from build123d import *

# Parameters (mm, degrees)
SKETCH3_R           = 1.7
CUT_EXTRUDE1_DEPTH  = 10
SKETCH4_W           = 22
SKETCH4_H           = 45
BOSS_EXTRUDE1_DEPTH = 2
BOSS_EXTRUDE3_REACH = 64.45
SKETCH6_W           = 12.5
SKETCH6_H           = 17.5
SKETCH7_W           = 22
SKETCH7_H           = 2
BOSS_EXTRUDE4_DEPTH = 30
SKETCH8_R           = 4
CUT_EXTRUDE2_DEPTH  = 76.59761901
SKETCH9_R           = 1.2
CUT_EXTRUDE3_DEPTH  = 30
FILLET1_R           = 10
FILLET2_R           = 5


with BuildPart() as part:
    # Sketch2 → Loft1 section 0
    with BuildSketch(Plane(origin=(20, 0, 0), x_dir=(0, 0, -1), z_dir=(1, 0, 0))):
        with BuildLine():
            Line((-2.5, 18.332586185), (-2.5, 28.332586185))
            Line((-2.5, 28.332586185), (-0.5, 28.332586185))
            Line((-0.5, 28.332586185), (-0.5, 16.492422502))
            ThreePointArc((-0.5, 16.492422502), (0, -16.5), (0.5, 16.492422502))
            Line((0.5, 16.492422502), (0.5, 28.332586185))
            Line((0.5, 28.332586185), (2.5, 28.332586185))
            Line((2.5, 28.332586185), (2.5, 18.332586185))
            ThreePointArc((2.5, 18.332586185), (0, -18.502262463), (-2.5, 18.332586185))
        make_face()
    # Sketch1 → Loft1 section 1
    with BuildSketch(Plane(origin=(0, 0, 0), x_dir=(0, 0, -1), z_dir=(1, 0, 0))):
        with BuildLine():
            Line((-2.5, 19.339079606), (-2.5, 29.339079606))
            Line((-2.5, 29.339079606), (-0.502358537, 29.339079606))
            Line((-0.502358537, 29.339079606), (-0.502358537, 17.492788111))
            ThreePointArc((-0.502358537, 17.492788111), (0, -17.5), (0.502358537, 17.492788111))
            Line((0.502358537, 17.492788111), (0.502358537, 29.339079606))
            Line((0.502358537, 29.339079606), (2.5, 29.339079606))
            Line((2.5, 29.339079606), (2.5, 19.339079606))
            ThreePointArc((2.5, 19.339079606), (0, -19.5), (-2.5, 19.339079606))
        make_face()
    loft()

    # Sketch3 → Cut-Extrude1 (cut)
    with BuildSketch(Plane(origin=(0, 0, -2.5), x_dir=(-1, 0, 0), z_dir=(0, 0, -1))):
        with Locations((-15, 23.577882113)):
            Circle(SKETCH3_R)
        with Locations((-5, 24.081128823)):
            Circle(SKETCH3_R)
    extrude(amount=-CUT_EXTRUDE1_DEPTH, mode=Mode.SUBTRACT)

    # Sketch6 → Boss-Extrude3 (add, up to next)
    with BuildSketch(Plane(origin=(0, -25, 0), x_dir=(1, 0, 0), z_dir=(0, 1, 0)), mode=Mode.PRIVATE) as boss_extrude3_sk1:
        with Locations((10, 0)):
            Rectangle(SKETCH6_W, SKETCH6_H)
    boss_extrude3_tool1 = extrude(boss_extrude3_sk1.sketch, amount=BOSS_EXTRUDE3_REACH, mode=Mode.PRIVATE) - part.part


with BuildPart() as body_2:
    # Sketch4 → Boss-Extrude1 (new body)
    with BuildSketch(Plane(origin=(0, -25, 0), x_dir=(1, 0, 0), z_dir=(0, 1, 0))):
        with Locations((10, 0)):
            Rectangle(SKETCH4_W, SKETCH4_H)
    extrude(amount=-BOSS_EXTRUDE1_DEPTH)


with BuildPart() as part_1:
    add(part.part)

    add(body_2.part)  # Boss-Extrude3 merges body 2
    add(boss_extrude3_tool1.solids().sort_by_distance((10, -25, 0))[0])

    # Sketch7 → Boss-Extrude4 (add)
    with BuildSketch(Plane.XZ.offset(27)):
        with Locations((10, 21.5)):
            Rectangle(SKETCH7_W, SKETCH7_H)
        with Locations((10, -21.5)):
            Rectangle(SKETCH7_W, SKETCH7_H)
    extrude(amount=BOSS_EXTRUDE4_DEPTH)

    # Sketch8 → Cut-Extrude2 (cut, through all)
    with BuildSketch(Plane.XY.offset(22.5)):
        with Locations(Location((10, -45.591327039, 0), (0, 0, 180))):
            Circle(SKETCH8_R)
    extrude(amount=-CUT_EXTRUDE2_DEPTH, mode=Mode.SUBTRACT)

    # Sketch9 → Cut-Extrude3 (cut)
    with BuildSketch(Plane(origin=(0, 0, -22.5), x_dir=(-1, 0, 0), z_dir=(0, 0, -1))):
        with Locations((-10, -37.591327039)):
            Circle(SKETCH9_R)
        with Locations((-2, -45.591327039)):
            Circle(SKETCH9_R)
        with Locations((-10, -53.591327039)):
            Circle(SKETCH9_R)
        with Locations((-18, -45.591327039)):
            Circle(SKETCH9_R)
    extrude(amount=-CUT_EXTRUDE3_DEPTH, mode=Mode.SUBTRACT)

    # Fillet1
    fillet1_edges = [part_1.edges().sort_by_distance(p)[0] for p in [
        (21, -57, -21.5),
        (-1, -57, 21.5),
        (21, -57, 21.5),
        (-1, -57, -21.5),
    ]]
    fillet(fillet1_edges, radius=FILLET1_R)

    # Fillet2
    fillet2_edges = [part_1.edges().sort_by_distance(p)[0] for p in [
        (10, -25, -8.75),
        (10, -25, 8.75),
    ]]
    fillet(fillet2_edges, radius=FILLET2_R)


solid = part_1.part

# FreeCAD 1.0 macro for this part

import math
import FreeCAD as App
import Part
import Sketcher
Q = App.Units.Quantity


def edges_at(feature, points):
    """Names of the edges that pass closest to the given points."""
    edges = feature.Shape.Edges
    near = lambda p: min(range(len(edges)), key=lambda i: edges[i].distToShape(Part.Vertex(*p))[0])
    return sorted({f"Edge{near(p) + 1}" for p in points})

doc = App.newDocument("Part")
body = doc.addObject("PartDesign::Body", "Body")

sketch1 = doc.addObject("Sketcher::SketchObject", "Sketch")
body.addObject(sketch1)
sketch1.AttachmentSupport = (doc.YZ_Plane, [""])
sketch1.MapMode = "FlatFace"
sketch1.AttachmentOffset = App.Placement(App.Vector(0, 0, 20), App.Rotation())
sketch1.addGeometry(Part.LineSegment(App.Vector(28.3, 2.5, 0), App.Vector(18.3, 2.5, 0)), False)
sketch1.addGeometry(Part.ArcOfCircle(Part.Circle(App.Vector(0, 0, 0), App.Vector(0, 0, 1), 18.5), math.radians(8), math.radians(352)), False)
sketch1.addGeometry(Part.LineSegment(App.Vector(18.3, -2.5, 0), App.Vector(28.3, -2.5, 0)), False)
sketch1.addGeometry(Part.LineSegment(App.Vector(28.3, -2.5, 0), App.Vector(28.3, -0.5, 0)), False)
sketch1.addGeometry(Part.LineSegment(App.Vector(28.3, -0.5, 0), App.Vector(16.5, -0.5, 0)), False)
sketch1.addGeometry(Part.ArcOfCircle(Part.Circle(App.Vector(0, 0, 0), App.Vector(0, 0, 1), 16.5), math.radians(2), math.radians(358)), False)
sketch1.addGeometry(Part.LineSegment(App.Vector(16.5, 0.5, 0), App.Vector(28.3, 0.5, 0)), False)
sketch1.addGeometry(Part.LineSegment(App.Vector(28.3, 0.5, 0), App.Vector(28.3, 2.5, 0)), False)
sketch1.addConstraint(Sketcher.Constraint("Coincident", 0, 2, 1, 1))
sketch1.addConstraint(Sketcher.Constraint("Coincident", 1, 2, 2, 1))
sketch1.addConstraint(Sketcher.Constraint("Coincident", 2, 2, 3, 1))
sketch1.addConstraint(Sketcher.Constraint("Coincident", 3, 2, 4, 1))
sketch1.addConstraint(Sketcher.Constraint("Coincident", 4, 2, 5, 2))
sketch1.addConstraint(Sketcher.Constraint("Coincident", 5, 1, 6, 1))
sketch1.addConstraint(Sketcher.Constraint("Coincident", 6, 2, 7, 1))
sketch1.addConstraint(Sketcher.Constraint("Coincident", 7, 2, 0, 1))
sketch1.addConstraint(Sketcher.Constraint("Horizontal", 0))
sketch1.addConstraint(Sketcher.Constraint("Horizontal", 2))
sketch1.addConstraint(Sketcher.Constraint("Vertical", 3))
sketch1.addConstraint(Sketcher.Constraint("Horizontal", 4))
sketch1.addConstraint(Sketcher.Constraint("Horizontal", 6))
sketch1.addConstraint(Sketcher.Constraint("Vertical", 7))
sketch1.addConstraint(Sketcher.Constraint("Coincident", 1, 3, -1, 1))
sketch1.addConstraint(Sketcher.Constraint("Coincident", 5, 3, -1, 1))
sketch1.addConstraint(Sketcher.Constraint("Symmetric", 3, 2, 6, 2, -1))
sketch1.addConstraint(Sketcher.Constraint("Vertical", 0, 2, 1, 2))
sketch1.addConstraint(Sketcher.Constraint("Radius", 5, Q("16.5 mm")))
sketch1.addConstraint(Sketcher.Constraint("DistanceX", 0, 2, 0, 1, Q("10 mm")))
sketch1.addConstraint(Sketcher.Constraint("DistanceY", 3, 1, 3, 2, Q("2 mm")))
sketch1.addConstraint(Sketcher.Constraint("DistanceY", 1, 2, 0, 2, Q("5 mm")))
sketch1.addConstraint(Sketcher.Constraint("Radius", 1, Q("18.502262 mm")))

sketch2 = doc.addObject("Sketcher::SketchObject", "Sketch001")
body.addObject(sketch2)
sketch2.AttachmentSupport = (doc.YZ_Plane, [""])
sketch2.MapMode = "FlatFace"
sketch2.addGeometry(Part.LineSegment(App.Vector(29.3, 2.5, 0), App.Vector(19.3, 2.5, 0)), False)
sketch2.addGeometry(Part.ArcOfCircle(Part.Circle(App.Vector(0, 0, 0), App.Vector(0, 0, 1), 19.5), math.radians(7), math.radians(353)), False)
sketch2.addGeometry(Part.LineSegment(App.Vector(19.3, -2.5, 0), App.Vector(29.3, -2.5, 0)), False)
sketch2.addGeometry(Part.LineSegment(App.Vector(29.3, -2.5, 0), App.Vector(29.3, -0.5, 0)), False)
sketch2.addGeometry(Part.LineSegment(App.Vector(29.3, -0.5, 0), App.Vector(17.5, -0.5, 0)), False)
sketch2.addGeometry(Part.ArcOfCircle(Part.Circle(App.Vector(0, 0, 0), App.Vector(0, 0, 1), 17.5), math.radians(2), math.radians(358)), False)
sketch2.addGeometry(Part.LineSegment(App.Vector(17.5, 0.5, 0), App.Vector(29.3, 0.5, 0)), False)
sketch2.addGeometry(Part.LineSegment(App.Vector(29.3, 0.5, 0), App.Vector(29.3, 2.5, 0)), False)
sketch2.addConstraint(Sketcher.Constraint("Coincident", 0, 2, 1, 1))
sketch2.addConstraint(Sketcher.Constraint("Coincident", 1, 2, 2, 1))
sketch2.addConstraint(Sketcher.Constraint("Coincident", 2, 2, 3, 1))
sketch2.addConstraint(Sketcher.Constraint("Coincident", 3, 2, 4, 1))
sketch2.addConstraint(Sketcher.Constraint("Coincident", 4, 2, 5, 2))
sketch2.addConstraint(Sketcher.Constraint("Coincident", 5, 1, 6, 1))
sketch2.addConstraint(Sketcher.Constraint("Coincident", 6, 2, 7, 1))
sketch2.addConstraint(Sketcher.Constraint("Coincident", 7, 2, 0, 1))
sketch2.addConstraint(Sketcher.Constraint("Horizontal", 0))
sketch2.addConstraint(Sketcher.Constraint("Horizontal", 2))
sketch2.addConstraint(Sketcher.Constraint("Vertical", 3))
sketch2.addConstraint(Sketcher.Constraint("Horizontal", 4))
sketch2.addConstraint(Sketcher.Constraint("Horizontal", 6))
sketch2.addConstraint(Sketcher.Constraint("Vertical", 7))
sketch2.addConstraint(Sketcher.Constraint("Coincident", 1, 3, -1, 1))
sketch2.addConstraint(Sketcher.Constraint("Coincident", 5, 3, -1, 1))
sketch2.addConstraint(Sketcher.Constraint("Symmetric", 3, 2, 6, 2, -1))
sketch2.addConstraint(Sketcher.Constraint("Vertical", 0, 2, 1, 2))
sketch2.addConstraint(Sketcher.Constraint("Radius", 1, Q("19.5 mm")))
sketch2.addConstraint(Sketcher.Constraint("Radius", 5, Q("17.5 mm")))
sketch2.addConstraint(Sketcher.Constraint("DistanceX", 0, 2, 0, 1, Q("10 mm")))
sketch2.addConstraint(Sketcher.Constraint("DistanceY", 1, 2, 0, 2, Q("5 mm")))
sketch2.addConstraint(Sketcher.Constraint("DistanceX", 4, 2, 4, 1, Q("11.846291 mm")))

additiveloft = doc.addObject("PartDesign::AdditiveLoft", "AdditiveLoft")
body.addObject(additiveloft)
additiveloft.Profile = sketch1
additiveloft.Sections = [sketch2]

sketch3 = doc.addObject("Sketcher::SketchObject", "Sketch002")
body.addObject(sketch3)
sketch3.AttachmentSupport = (doc.XY_Plane, [""])
sketch3.MapMode = "FlatFace"
sketch3.AttachmentOffset = App.Placement(App.Vector(0, 0, -2.5), App.Rotation())
sketch3.addGeometry(Part.Circle(App.Vector(15, 23.6, 0), App.Vector(0, 0, 1), 1.7), False)
sketch3.addGeometry(Part.Circle(App.Vector(5, 24.1, 0), App.Vector(0, 0, 1), 1.7), False)
sketch3.addConstraint(Sketcher.Constraint("Equal", 0, 1))
sketch3.addConstraint(Sketcher.Constraint("Diameter", 0, Q("3.4 mm")))
sketch3.addConstraint(Sketcher.Constraint("DistanceX", -1, 1, 0, 3, Q("15 mm")))
sketch3.addConstraint(Sketcher.Constraint("DistanceX", -1, 1, 1, 3, Q("5 mm")))
sketch3.addConstraint(Sketcher.Constraint("DistanceY", -1, 1, 1, 3, Q("24.081129 mm")))
sketch3.addConstraint(Sketcher.Constraint("DistanceY", -1, 1, 0, 3, Q("23.577882 mm")))
pocket1 = doc.addObject("PartDesign::Pocket", "Pocket")
body.addObject(pocket1)
pocket1.Profile = sketch3
pocket1.Length = 10
pocket1.Reversed = True
body2 = doc.addObject("PartDesign::Body", "Body001")

sketch4 = doc.addObject("Sketcher::SketchObject", "Sketch003")
body2.addObject(sketch4)
sketch4.AttachmentSupport = (doc.getObject("XZ_Plane001"), [""])
sketch4.MapMode = "FlatFace"
sketch4.AttachmentOffset = App.Placement(App.Vector(0, 0, 25), App.Rotation())
sketch4.addGeometry(Part.LineSegment(App.Vector(-1, -22, 0), App.Vector(-1, 22, 0)), False)
sketch4.addGeometry(Part.LineSegment(App.Vector(-1, 22, 0), App.Vector(21, 22, 0)), False)
sketch4.addGeometry(Part.LineSegment(App.Vector(21, 22, 0), App.Vector(21, -22, 0)), False)
sketch4.addGeometry(Part.LineSegment(App.Vector(21, -22, 0), App.Vector(-1, -22, 0)), False)
sketch4.addConstraint(Sketcher.Constraint("Coincident", 0, 2, 1, 1))
sketch4.addConstraint(Sketcher.Constraint("Coincident", 1, 2, 2, 1))
sketch4.addConstraint(Sketcher.Constraint("Coincident", 2, 2, 3, 1))
sketch4.addConstraint(Sketcher.Constraint("Coincident", 3, 2, 0, 1))
sketch4.addConstraint(Sketcher.Constraint("Vertical", 0))
sketch4.addConstraint(Sketcher.Constraint("Horizontal", 1))
sketch4.addConstraint(Sketcher.Constraint("Vertical", 2))
sketch4.addConstraint(Sketcher.Constraint("Horizontal", 3))
sketch4.addConstraint(Sketcher.Constraint("DistanceX", 1, 1, 1, 2, Q("22 mm")))
sketch4.addConstraint(Sketcher.Constraint("DistanceY", 0, 1, 0, 2, Q("45 mm")))
sketch4.addConstraint(Sketcher.Constraint("DistanceX", 0, 2, -1, 1, Q("1 mm")))
sketch4.addConstraint(Sketcher.Constraint("DistanceY", -1, 1, 0, 2, Q("22.5 mm")))
pad1 = doc.addObject("PartDesign::Pad", "Pad")
body2.addObject(pad1)
pad1.Profile = sketch4
pad1.Length = 2
body.AllowCompound = True
doc.recompute()

boolean = doc.addObject("PartDesign::Boolean", "Boolean")
body.addObject(boolean)
boolean.Type = "Fuse"
boolean.addObjects([body2])

sketch5 = doc.addObject("Sketcher::SketchObject", "Sketch004")
body.addObject(sketch5)
sketch5.AttachmentSupport = (doc.XZ_Plane, [""])
sketch5.MapMode = "FlatFace"
sketch5.AttachmentOffset = App.Placement(App.Vector(0, 0, 25), App.Rotation())
sketch5.addGeometry(Part.LineSegment(App.Vector(4, -9, 0), App.Vector(4, 9, 0)), False)
sketch5.addGeometry(Part.LineSegment(App.Vector(4, 9, 0), App.Vector(16, 9, 0)), False)
sketch5.addGeometry(Part.LineSegment(App.Vector(16, 9, 0), App.Vector(16, -9, 0)), False)
sketch5.addGeometry(Part.LineSegment(App.Vector(16, -9, 0), App.Vector(4, -9, 0)), False)
sketch5.addConstraint(Sketcher.Constraint("Coincident", 0, 2, 1, 1))
sketch5.addConstraint(Sketcher.Constraint("Coincident", 1, 2, 2, 1))
sketch5.addConstraint(Sketcher.Constraint("Coincident", 2, 2, 3, 1))
sketch5.addConstraint(Sketcher.Constraint("Coincident", 3, 2, 0, 1))
sketch5.addConstraint(Sketcher.Constraint("Vertical", 0))
sketch5.addConstraint(Sketcher.Constraint("Horizontal", 1))
sketch5.addConstraint(Sketcher.Constraint("Vertical", 2))
sketch5.addConstraint(Sketcher.Constraint("Horizontal", 3))
sketch5.addConstraint(Sketcher.Constraint("DistanceX", 1, 1, 1, 2, Q("12.5 mm")))
sketch5.addConstraint(Sketcher.Constraint("DistanceY", 0, 1, 0, 2, Q("17.5 mm")))
sketch5.addConstraint(Sketcher.Constraint("DistanceX", -1, 1, 0, 2, Q("3.75 mm")))
sketch5.addConstraint(Sketcher.Constraint("DistanceY", -1, 1, 0, 2, Q("8.75 mm")))
pad2 = doc.addObject("PartDesign::Pad", "Pad001")
body.addObject(pad2)
pad2.Profile = sketch5
pad2.Type = "UpToFirst"
pad2.Reversed = True

sketch6 = doc.addObject("Sketcher::SketchObject", "Sketch005")
body.addObject(sketch6)
sketch6.AttachmentSupport = (doc.XZ_Plane, [""])
sketch6.MapMode = "FlatFace"
sketch6.AttachmentOffset = App.Placement(App.Vector(0, 0, 27), App.Rotation())
sketch6.addGeometry(Part.LineSegment(App.Vector(-1, 22.5, 0), App.Vector(-1, 20.5, 0)), False)
sketch6.addGeometry(Part.LineSegment(App.Vector(-1, 20.5, 0), App.Vector(21, 20.5, 0)), False)
sketch6.addGeometry(Part.LineSegment(App.Vector(21, 20.5, 0), App.Vector(21, 22.5, 0)), False)
sketch6.addGeometry(Part.LineSegment(App.Vector(21, 22.5, 0), App.Vector(-1, 22.5, 0)), False)
sketch6.addGeometry(Part.LineSegment(App.Vector(-1, -20.5, 0), App.Vector(-1, -22.5, 0)), False)
sketch6.addGeometry(Part.LineSegment(App.Vector(-1, -22.5, 0), App.Vector(21, -22.5, 0)), False)
sketch6.addGeometry(Part.LineSegment(App.Vector(21, -22.5, 0), App.Vector(21, -20.5, 0)), False)
sketch6.addGeometry(Part.LineSegment(App.Vector(21, -20.5, 0), App.Vector(-1, -20.5, 0)), False)
sketch6.addConstraint(Sketcher.Constraint("Coincident", 0, 2, 1, 1))
sketch6.addConstraint(Sketcher.Constraint("Coincident", 1, 2, 2, 1))
sketch6.addConstraint(Sketcher.Constraint("Coincident", 2, 2, 3, 1))
sketch6.addConstraint(Sketcher.Constraint("Coincident", 3, 2, 0, 1))
sketch6.addConstraint(Sketcher.Constraint("Coincident", 4, 2, 5, 1))
sketch6.addConstraint(Sketcher.Constraint("Coincident", 5, 2, 6, 1))
sketch6.addConstraint(Sketcher.Constraint("Coincident", 6, 2, 7, 1))
sketch6.addConstraint(Sketcher.Constraint("Coincident", 7, 2, 4, 1))
sketch6.addConstraint(Sketcher.Constraint("Vertical", 0))
sketch6.addConstraint(Sketcher.Constraint("Horizontal", 1))
sketch6.addConstraint(Sketcher.Constraint("Vertical", 2))
sketch6.addConstraint(Sketcher.Constraint("Horizontal", 3))
sketch6.addConstraint(Sketcher.Constraint("Vertical", 4))
sketch6.addConstraint(Sketcher.Constraint("Horizontal", 5))
sketch6.addConstraint(Sketcher.Constraint("Vertical", 6))
sketch6.addConstraint(Sketcher.Constraint("Horizontal", 7))
sketch6.addConstraint(Sketcher.Constraint("Symmetric", 3, 2, 4, 2, -1))
sketch6.addConstraint(Sketcher.Constraint("Symmetric", 1, 2, 6, 2, -1))
sketch6.addConstraint(Sketcher.Constraint("DistanceX", 1, 1, 1, 2, Q("22 mm")))
sketch6.addConstraint(Sketcher.Constraint("DistanceY", 0, 2, 0, 1, Q("2 mm")))
sketch6.addConstraint(Sketcher.Constraint("DistanceX", 0, 2, -1, 1, Q("1 mm")))
sketch6.addConstraint(Sketcher.Constraint("DistanceY", 4, 2, 0, 2, Q("43 mm")))
pad3 = doc.addObject("PartDesign::Pad", "Pad002")
body.addObject(pad3)
pad3.Profile = sketch6
pad3.Length = 30

sketch7 = doc.addObject("Sketcher::SketchObject", "Sketch006")
body.addObject(sketch7)
sketch7.AttachmentSupport = (doc.XY_Plane, [""])
sketch7.MapMode = "FlatFace"
sketch7.AttachmentOffset = App.Placement(App.Vector(0, 0, 22.5), App.Rotation())
sketch7.addGeometry(Part.Circle(App.Vector(10, -45.6, 0), App.Vector(0, 0, 1), 4), False)
sketch7.addConstraint(Sketcher.Constraint("Diameter", 0, Q("8 mm")))
sketch7.addConstraint(Sketcher.Constraint("DistanceX", -1, 1, 0, 3, Q("10 mm")))
sketch7.addConstraint(Sketcher.Constraint("DistanceY", 0, 3, -1, 1, Q("45.591327 mm")))
pocket2 = doc.addObject("PartDesign::Pocket", "Pocket001")
body.addObject(pocket2)
pocket2.Profile = sketch7
pocket2.Type = "ThroughAll"

sketch8 = doc.addObject("Sketcher::SketchObject", "Sketch007")
body.addObject(sketch8)
sketch8.AttachmentSupport = (doc.XY_Plane, [""])
sketch8.MapMode = "FlatFace"
sketch8.AttachmentOffset = App.Placement(App.Vector(0, 0, -22.5), App.Rotation())
sketch8.addGeometry(Part.Circle(App.Vector(10, -37.6, 0), App.Vector(0, 0, 1), 1.2), False)
sketch8.addGeometry(Part.Circle(App.Vector(2, -45.6, 0), App.Vector(0, 0, 1), 1.2), False)
sketch8.addGeometry(Part.Circle(App.Vector(10, -53.6, 0), App.Vector(0, 0, 1), 1.2), False)
sketch8.addGeometry(Part.Circle(App.Vector(18, -45.6, 0), App.Vector(0, 0, 1), 1.2), False)
sketch8.addConstraint(Sketcher.Constraint("Equal", 0, 1))
sketch8.addConstraint(Sketcher.Constraint("Equal", 1, 2))
sketch8.addConstraint(Sketcher.Constraint("Equal", 2, 3))
sketch8.addConstraint(Sketcher.Constraint("Horizontal", 1, 3, 3, 3))
sketch8.addConstraint(Sketcher.Constraint("Vertical", 0, 3, 2, 3))
sketch8.addConstraint(Sketcher.Constraint("Diameter", 0, Q("2.4 mm")))
sketch8.addConstraint(Sketcher.Constraint("DistanceX", -1, 1, 0, 3, Q("10 mm")))
sketch8.addConstraint(Sketcher.Constraint("DistanceX", -1, 1, 1, 3, Q("2 mm")))
sketch8.addConstraint(Sketcher.Constraint("DistanceX", -1, 1, 3, 3, Q("18 mm")))
sketch8.addConstraint(Sketcher.Constraint("DistanceY", 1, 3, 0, 3, Q("8 mm")))
sketch8.addConstraint(Sketcher.Constraint("DistanceY", 2, 3, 1, 3, Q("8 mm")))
sketch8.addConstraint(Sketcher.Constraint("DistanceY", 0, 3, -1, 1, Q("37.591327 mm")))
pocket3 = doc.addObject("PartDesign::Pocket", "Pocket002")
body.addObject(pocket3)
pocket3.Profile = sketch8
pocket3.Length = 30
pocket3.Reversed = True
doc.recompute()

fillet = doc.addObject("PartDesign::Fillet", "Fillet")
body.addObject(fillet)
fillet.Base = (pocket3, edges_at(pocket3, [
    (21, -57, -21.5),
    (-1, -57, 21.5),
    (21, -57, 21.5),
    (-1, -57, -21.5),
]))
fillet.Radius = 10
doc.recompute()

fillet2 = doc.addObject("PartDesign::Fillet", "Fillet001")
body.addObject(fillet2)
fillet2.Base = (fillet, edges_at(fillet, [(10, -25, -8.75), (10, -25, 8.75)]))
fillet2.Radius = 5

doc.recompute()
